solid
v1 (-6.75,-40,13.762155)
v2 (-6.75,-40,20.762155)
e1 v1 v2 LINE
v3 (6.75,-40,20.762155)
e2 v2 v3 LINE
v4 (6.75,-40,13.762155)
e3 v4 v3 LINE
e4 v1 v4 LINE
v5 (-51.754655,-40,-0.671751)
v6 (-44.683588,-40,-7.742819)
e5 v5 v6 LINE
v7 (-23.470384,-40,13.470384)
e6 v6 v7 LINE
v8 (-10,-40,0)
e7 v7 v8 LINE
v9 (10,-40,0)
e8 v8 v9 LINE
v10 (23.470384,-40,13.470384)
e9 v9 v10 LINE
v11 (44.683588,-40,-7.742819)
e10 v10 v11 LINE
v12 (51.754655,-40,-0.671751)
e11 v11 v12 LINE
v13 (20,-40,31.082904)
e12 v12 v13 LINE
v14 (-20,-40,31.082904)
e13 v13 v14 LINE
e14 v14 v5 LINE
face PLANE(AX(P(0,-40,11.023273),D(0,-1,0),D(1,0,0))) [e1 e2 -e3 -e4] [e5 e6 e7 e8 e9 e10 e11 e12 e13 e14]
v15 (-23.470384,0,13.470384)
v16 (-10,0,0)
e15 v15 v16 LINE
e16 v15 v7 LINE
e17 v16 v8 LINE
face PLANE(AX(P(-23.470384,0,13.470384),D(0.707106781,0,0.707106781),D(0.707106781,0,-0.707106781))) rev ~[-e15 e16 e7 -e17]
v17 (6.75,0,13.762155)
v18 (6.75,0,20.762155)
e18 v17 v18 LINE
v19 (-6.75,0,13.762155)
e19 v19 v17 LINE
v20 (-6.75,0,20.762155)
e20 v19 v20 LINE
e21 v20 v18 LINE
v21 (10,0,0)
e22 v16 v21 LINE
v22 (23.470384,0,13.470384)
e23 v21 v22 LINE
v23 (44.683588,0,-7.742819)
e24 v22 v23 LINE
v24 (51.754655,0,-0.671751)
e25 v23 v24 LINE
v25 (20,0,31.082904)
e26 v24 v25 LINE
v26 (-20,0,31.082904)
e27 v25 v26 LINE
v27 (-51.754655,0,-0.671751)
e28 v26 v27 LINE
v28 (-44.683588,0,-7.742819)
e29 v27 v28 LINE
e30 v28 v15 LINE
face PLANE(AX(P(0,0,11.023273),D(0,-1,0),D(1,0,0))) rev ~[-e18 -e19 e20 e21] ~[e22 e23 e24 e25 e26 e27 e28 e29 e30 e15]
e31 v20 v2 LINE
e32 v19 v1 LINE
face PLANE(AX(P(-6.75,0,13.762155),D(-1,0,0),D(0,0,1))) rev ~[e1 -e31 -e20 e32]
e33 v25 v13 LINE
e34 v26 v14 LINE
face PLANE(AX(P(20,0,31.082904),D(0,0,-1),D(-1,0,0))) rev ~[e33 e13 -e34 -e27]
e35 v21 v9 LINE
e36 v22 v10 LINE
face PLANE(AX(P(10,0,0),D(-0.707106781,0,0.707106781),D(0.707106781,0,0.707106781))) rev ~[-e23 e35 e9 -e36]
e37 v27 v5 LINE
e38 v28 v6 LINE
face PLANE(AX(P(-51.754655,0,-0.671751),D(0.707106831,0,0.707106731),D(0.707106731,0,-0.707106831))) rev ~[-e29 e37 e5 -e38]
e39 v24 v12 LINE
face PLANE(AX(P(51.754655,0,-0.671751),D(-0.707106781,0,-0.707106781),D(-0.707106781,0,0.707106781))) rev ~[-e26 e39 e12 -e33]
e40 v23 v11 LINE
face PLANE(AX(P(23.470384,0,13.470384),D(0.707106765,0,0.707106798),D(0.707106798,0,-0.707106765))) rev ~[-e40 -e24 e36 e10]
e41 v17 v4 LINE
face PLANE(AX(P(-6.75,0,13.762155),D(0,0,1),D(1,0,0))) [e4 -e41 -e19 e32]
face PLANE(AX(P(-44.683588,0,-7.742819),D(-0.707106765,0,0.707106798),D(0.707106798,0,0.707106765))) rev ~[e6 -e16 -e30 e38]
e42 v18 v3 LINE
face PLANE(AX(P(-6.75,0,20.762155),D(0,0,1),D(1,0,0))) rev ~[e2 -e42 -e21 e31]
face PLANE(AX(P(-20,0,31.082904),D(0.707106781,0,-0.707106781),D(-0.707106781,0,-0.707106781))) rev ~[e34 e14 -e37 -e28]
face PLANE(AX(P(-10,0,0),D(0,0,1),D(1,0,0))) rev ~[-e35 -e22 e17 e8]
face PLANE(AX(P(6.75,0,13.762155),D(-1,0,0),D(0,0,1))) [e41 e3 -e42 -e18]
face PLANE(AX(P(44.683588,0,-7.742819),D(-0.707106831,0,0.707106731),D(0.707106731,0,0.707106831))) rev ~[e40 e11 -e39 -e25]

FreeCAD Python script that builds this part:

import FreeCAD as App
import Part
import Sketcher

V = App.Vector
Q = App.Units.Quantity

doc = App.newDocument("Part")
body = doc.addObject("PartDesign::Body", "Body")

sketch1 = doc.addObject("Sketcher::SketchObject", "Sketch")
body.addObject(sketch1)
sketch1.AttachmentSupport = (doc.XZ_Plane, [""])
sketch1.MapMode = "FlatFace"
sketch1.addGeometry(Part.LineSegment(V(-10, 0, 0), V(10, 0, 0)), False)
sketch1.addGeometry(Part.LineSegment(V(10, 0, 0), V(23, 13, 0)), False)
sketch1.addGeometry(Part.LineSegment(V(23, 13, 0), V(45, -8, 0)), False)
sketch1.addGeometry(Part.LineSegment(V(45, -8, 0), V(52, -1, 0)), False)
sketch1.addGeometry(Part.LineSegment(V(52, -1, 0), V(20, 31, 0)), False)
sketch1.addGeometry(Part.LineSegment(V(20, 31, 0), V(-20, 31, 0)), False)
sketch1.addGeometry(Part.LineSegment(V(-20, 31, 0), V(-52, -1, 0)), False)
sketch1.addGeometry(Part.LineSegment(V(-52, -1, 0), V(-45, -8, 0)), False)
sketch1.addGeometry(Part.LineSegment(V(-45, -8, 0), V(-23, 13, 0)), False)
sketch1.addGeometry(Part.LineSegment(V(-23, 13, 0), V(-10, 0, 0)), False)
sketch1.addGeometry(Part.LineSegment(V(7, 14, 0), V(-7, 14, 0)), False)
sketch1.addGeometry(Part.LineSegment(V(-7, 14, 0), V(-7, 21, 0)), False)
sketch1.addGeometry(Part.LineSegment(V(-7, 21, 0), V(7, 21, 0)), False)
sketch1.addGeometry(Part.LineSegment(V(7, 21, 0), V(7, 14, 0)), False)
sketch1.addConstraint(Sketcher.Constraint("Coincident", 0, 2, 1, 1))
sketch1.addConstraint(Sketcher.Constraint("Coincident", 1, 2, 2, 1))
sketch1.addConstraint(Sketcher.Constraint("Coincident", 2, 2, 3, 1))
sketch1.addConstraint(Sketcher.Constraint("Coincident", 3, 2, 4, 1))
sketch1.addConstraint(Sketcher.Constraint("Coincident", 4, 2, 5, 1))
sketch1.addConstraint(Sketcher.Constraint("Coincident", 5, 2, 6, 1))
sketch1.addConstraint(Sketcher.Constraint("Coincident", 6, 2, 7, 1))
sketch1.addConstraint(Sketcher.Constraint("Coincident", 7, 2, 8, 1))
sketch1.addConstraint(Sketcher.Constraint("Coincident", 8, 2, 9, 1))
sketch1.addConstraint(Sketcher.Constraint("Coincident", 9, 2, 0, 1))
sketch1.addConstraint(Sketcher.Constraint("Coincident", 10, 2, 11, 1))
sketch1.addConstraint(Sketcher.Constraint("Coincident", 11, 2, 12, 1))
sketch1.addConstraint(Sketcher.Constraint("Coincident", 12, 2, 13, 1))
sketch1.addConstraint(Sketcher.Constraint("Coincident", 13, 2, 10, 1))
sketch1.addConstraint(Sketcher.Constraint("Horizontal", 0))
sketch1.addConstraint(Sketcher.Constraint("Horizontal", 5))
sketch1.addConstraint(Sketcher.Constraint("Horizontal", 10))
sketch1.addConstraint(Sketcher.Constraint("Vertical", 11))
sketch1.addConstraint(Sketcher.Constraint("Horizontal", 12))
sketch1.addConstraint(Sketcher.Constraint("Vertical", 13))
sketch1.addConstraint(Sketcher.Constraint("Symmetric", 0, 2, 9, 2, -1, 1))
sketch1.addConstraint(Sketcher.Constraint("Symmetric", 3, 2, 6, 2, -2))
sketch1.addConstraint(Sketcher.Constraint("Symmetric", 2, 2, 7, 2, -2))
sketch1.addConstraint(Sketcher.Constraint("Symmetric", 1, 2, 8, 2, -2))
sketch1.addConstraint(Sketcher.Constraint("Perpendicular", 1, 2))
sketch1.addConstraint(Sketcher.Constraint("Perpendicular", 2, 3))
sketch1.addConstraint(Sketcher.Constraint("Perpendicular", 3, 4))
sketch1.addConstraint(Sketcher.Constraint("Perpendicular", 4, 6))
sketch1.addConstraint(Sketcher.Constraint("Perpendicular", 6, 7))
sketch1.addConstraint(Sketcher.Constraint("DistanceX", 0, 1, 0, 2, Q("20 mm")))
sketch1.addConstraint(Sketcher.Constraint("DistanceX", 5, 2, 5, 1, Q("40 mm")))
sketch1.addConstraint(Sketcher.Constraint("DistanceY", 11, 1, 11, 2, Q("7 mm")))
sketch1.addConstraint(Sketcher.Constraint("Distance", 2, Q("30 mm")))
sketch1.addConstraint(Sketcher.Constraint("Distance", 3, Q("10 mm")))
sketch1.addConstraint(Sketcher.Constraint("DistanceX", 10, 2, 10, 1, Q("13.5 mm")))
sketch1.addConstraint(Sketcher.Constraint("Distance", 1, Q("19.05 mm")))
sketch1.addConstraint(Sketcher.Constraint("DistanceX", 10, 2, -1, 1, Q("6.75 mm")))
sketch1.addConstraint(Sketcher.Constraint("DistanceY", 8, 2, 10, 2, Q("0.291771 mm")))
pad1 = doc.addObject("PartDesign::Pad", "Pad")
body.addObject(pad1)
pad1.Profile = sketch1
pad1.Length = 40

doc.recompute()
